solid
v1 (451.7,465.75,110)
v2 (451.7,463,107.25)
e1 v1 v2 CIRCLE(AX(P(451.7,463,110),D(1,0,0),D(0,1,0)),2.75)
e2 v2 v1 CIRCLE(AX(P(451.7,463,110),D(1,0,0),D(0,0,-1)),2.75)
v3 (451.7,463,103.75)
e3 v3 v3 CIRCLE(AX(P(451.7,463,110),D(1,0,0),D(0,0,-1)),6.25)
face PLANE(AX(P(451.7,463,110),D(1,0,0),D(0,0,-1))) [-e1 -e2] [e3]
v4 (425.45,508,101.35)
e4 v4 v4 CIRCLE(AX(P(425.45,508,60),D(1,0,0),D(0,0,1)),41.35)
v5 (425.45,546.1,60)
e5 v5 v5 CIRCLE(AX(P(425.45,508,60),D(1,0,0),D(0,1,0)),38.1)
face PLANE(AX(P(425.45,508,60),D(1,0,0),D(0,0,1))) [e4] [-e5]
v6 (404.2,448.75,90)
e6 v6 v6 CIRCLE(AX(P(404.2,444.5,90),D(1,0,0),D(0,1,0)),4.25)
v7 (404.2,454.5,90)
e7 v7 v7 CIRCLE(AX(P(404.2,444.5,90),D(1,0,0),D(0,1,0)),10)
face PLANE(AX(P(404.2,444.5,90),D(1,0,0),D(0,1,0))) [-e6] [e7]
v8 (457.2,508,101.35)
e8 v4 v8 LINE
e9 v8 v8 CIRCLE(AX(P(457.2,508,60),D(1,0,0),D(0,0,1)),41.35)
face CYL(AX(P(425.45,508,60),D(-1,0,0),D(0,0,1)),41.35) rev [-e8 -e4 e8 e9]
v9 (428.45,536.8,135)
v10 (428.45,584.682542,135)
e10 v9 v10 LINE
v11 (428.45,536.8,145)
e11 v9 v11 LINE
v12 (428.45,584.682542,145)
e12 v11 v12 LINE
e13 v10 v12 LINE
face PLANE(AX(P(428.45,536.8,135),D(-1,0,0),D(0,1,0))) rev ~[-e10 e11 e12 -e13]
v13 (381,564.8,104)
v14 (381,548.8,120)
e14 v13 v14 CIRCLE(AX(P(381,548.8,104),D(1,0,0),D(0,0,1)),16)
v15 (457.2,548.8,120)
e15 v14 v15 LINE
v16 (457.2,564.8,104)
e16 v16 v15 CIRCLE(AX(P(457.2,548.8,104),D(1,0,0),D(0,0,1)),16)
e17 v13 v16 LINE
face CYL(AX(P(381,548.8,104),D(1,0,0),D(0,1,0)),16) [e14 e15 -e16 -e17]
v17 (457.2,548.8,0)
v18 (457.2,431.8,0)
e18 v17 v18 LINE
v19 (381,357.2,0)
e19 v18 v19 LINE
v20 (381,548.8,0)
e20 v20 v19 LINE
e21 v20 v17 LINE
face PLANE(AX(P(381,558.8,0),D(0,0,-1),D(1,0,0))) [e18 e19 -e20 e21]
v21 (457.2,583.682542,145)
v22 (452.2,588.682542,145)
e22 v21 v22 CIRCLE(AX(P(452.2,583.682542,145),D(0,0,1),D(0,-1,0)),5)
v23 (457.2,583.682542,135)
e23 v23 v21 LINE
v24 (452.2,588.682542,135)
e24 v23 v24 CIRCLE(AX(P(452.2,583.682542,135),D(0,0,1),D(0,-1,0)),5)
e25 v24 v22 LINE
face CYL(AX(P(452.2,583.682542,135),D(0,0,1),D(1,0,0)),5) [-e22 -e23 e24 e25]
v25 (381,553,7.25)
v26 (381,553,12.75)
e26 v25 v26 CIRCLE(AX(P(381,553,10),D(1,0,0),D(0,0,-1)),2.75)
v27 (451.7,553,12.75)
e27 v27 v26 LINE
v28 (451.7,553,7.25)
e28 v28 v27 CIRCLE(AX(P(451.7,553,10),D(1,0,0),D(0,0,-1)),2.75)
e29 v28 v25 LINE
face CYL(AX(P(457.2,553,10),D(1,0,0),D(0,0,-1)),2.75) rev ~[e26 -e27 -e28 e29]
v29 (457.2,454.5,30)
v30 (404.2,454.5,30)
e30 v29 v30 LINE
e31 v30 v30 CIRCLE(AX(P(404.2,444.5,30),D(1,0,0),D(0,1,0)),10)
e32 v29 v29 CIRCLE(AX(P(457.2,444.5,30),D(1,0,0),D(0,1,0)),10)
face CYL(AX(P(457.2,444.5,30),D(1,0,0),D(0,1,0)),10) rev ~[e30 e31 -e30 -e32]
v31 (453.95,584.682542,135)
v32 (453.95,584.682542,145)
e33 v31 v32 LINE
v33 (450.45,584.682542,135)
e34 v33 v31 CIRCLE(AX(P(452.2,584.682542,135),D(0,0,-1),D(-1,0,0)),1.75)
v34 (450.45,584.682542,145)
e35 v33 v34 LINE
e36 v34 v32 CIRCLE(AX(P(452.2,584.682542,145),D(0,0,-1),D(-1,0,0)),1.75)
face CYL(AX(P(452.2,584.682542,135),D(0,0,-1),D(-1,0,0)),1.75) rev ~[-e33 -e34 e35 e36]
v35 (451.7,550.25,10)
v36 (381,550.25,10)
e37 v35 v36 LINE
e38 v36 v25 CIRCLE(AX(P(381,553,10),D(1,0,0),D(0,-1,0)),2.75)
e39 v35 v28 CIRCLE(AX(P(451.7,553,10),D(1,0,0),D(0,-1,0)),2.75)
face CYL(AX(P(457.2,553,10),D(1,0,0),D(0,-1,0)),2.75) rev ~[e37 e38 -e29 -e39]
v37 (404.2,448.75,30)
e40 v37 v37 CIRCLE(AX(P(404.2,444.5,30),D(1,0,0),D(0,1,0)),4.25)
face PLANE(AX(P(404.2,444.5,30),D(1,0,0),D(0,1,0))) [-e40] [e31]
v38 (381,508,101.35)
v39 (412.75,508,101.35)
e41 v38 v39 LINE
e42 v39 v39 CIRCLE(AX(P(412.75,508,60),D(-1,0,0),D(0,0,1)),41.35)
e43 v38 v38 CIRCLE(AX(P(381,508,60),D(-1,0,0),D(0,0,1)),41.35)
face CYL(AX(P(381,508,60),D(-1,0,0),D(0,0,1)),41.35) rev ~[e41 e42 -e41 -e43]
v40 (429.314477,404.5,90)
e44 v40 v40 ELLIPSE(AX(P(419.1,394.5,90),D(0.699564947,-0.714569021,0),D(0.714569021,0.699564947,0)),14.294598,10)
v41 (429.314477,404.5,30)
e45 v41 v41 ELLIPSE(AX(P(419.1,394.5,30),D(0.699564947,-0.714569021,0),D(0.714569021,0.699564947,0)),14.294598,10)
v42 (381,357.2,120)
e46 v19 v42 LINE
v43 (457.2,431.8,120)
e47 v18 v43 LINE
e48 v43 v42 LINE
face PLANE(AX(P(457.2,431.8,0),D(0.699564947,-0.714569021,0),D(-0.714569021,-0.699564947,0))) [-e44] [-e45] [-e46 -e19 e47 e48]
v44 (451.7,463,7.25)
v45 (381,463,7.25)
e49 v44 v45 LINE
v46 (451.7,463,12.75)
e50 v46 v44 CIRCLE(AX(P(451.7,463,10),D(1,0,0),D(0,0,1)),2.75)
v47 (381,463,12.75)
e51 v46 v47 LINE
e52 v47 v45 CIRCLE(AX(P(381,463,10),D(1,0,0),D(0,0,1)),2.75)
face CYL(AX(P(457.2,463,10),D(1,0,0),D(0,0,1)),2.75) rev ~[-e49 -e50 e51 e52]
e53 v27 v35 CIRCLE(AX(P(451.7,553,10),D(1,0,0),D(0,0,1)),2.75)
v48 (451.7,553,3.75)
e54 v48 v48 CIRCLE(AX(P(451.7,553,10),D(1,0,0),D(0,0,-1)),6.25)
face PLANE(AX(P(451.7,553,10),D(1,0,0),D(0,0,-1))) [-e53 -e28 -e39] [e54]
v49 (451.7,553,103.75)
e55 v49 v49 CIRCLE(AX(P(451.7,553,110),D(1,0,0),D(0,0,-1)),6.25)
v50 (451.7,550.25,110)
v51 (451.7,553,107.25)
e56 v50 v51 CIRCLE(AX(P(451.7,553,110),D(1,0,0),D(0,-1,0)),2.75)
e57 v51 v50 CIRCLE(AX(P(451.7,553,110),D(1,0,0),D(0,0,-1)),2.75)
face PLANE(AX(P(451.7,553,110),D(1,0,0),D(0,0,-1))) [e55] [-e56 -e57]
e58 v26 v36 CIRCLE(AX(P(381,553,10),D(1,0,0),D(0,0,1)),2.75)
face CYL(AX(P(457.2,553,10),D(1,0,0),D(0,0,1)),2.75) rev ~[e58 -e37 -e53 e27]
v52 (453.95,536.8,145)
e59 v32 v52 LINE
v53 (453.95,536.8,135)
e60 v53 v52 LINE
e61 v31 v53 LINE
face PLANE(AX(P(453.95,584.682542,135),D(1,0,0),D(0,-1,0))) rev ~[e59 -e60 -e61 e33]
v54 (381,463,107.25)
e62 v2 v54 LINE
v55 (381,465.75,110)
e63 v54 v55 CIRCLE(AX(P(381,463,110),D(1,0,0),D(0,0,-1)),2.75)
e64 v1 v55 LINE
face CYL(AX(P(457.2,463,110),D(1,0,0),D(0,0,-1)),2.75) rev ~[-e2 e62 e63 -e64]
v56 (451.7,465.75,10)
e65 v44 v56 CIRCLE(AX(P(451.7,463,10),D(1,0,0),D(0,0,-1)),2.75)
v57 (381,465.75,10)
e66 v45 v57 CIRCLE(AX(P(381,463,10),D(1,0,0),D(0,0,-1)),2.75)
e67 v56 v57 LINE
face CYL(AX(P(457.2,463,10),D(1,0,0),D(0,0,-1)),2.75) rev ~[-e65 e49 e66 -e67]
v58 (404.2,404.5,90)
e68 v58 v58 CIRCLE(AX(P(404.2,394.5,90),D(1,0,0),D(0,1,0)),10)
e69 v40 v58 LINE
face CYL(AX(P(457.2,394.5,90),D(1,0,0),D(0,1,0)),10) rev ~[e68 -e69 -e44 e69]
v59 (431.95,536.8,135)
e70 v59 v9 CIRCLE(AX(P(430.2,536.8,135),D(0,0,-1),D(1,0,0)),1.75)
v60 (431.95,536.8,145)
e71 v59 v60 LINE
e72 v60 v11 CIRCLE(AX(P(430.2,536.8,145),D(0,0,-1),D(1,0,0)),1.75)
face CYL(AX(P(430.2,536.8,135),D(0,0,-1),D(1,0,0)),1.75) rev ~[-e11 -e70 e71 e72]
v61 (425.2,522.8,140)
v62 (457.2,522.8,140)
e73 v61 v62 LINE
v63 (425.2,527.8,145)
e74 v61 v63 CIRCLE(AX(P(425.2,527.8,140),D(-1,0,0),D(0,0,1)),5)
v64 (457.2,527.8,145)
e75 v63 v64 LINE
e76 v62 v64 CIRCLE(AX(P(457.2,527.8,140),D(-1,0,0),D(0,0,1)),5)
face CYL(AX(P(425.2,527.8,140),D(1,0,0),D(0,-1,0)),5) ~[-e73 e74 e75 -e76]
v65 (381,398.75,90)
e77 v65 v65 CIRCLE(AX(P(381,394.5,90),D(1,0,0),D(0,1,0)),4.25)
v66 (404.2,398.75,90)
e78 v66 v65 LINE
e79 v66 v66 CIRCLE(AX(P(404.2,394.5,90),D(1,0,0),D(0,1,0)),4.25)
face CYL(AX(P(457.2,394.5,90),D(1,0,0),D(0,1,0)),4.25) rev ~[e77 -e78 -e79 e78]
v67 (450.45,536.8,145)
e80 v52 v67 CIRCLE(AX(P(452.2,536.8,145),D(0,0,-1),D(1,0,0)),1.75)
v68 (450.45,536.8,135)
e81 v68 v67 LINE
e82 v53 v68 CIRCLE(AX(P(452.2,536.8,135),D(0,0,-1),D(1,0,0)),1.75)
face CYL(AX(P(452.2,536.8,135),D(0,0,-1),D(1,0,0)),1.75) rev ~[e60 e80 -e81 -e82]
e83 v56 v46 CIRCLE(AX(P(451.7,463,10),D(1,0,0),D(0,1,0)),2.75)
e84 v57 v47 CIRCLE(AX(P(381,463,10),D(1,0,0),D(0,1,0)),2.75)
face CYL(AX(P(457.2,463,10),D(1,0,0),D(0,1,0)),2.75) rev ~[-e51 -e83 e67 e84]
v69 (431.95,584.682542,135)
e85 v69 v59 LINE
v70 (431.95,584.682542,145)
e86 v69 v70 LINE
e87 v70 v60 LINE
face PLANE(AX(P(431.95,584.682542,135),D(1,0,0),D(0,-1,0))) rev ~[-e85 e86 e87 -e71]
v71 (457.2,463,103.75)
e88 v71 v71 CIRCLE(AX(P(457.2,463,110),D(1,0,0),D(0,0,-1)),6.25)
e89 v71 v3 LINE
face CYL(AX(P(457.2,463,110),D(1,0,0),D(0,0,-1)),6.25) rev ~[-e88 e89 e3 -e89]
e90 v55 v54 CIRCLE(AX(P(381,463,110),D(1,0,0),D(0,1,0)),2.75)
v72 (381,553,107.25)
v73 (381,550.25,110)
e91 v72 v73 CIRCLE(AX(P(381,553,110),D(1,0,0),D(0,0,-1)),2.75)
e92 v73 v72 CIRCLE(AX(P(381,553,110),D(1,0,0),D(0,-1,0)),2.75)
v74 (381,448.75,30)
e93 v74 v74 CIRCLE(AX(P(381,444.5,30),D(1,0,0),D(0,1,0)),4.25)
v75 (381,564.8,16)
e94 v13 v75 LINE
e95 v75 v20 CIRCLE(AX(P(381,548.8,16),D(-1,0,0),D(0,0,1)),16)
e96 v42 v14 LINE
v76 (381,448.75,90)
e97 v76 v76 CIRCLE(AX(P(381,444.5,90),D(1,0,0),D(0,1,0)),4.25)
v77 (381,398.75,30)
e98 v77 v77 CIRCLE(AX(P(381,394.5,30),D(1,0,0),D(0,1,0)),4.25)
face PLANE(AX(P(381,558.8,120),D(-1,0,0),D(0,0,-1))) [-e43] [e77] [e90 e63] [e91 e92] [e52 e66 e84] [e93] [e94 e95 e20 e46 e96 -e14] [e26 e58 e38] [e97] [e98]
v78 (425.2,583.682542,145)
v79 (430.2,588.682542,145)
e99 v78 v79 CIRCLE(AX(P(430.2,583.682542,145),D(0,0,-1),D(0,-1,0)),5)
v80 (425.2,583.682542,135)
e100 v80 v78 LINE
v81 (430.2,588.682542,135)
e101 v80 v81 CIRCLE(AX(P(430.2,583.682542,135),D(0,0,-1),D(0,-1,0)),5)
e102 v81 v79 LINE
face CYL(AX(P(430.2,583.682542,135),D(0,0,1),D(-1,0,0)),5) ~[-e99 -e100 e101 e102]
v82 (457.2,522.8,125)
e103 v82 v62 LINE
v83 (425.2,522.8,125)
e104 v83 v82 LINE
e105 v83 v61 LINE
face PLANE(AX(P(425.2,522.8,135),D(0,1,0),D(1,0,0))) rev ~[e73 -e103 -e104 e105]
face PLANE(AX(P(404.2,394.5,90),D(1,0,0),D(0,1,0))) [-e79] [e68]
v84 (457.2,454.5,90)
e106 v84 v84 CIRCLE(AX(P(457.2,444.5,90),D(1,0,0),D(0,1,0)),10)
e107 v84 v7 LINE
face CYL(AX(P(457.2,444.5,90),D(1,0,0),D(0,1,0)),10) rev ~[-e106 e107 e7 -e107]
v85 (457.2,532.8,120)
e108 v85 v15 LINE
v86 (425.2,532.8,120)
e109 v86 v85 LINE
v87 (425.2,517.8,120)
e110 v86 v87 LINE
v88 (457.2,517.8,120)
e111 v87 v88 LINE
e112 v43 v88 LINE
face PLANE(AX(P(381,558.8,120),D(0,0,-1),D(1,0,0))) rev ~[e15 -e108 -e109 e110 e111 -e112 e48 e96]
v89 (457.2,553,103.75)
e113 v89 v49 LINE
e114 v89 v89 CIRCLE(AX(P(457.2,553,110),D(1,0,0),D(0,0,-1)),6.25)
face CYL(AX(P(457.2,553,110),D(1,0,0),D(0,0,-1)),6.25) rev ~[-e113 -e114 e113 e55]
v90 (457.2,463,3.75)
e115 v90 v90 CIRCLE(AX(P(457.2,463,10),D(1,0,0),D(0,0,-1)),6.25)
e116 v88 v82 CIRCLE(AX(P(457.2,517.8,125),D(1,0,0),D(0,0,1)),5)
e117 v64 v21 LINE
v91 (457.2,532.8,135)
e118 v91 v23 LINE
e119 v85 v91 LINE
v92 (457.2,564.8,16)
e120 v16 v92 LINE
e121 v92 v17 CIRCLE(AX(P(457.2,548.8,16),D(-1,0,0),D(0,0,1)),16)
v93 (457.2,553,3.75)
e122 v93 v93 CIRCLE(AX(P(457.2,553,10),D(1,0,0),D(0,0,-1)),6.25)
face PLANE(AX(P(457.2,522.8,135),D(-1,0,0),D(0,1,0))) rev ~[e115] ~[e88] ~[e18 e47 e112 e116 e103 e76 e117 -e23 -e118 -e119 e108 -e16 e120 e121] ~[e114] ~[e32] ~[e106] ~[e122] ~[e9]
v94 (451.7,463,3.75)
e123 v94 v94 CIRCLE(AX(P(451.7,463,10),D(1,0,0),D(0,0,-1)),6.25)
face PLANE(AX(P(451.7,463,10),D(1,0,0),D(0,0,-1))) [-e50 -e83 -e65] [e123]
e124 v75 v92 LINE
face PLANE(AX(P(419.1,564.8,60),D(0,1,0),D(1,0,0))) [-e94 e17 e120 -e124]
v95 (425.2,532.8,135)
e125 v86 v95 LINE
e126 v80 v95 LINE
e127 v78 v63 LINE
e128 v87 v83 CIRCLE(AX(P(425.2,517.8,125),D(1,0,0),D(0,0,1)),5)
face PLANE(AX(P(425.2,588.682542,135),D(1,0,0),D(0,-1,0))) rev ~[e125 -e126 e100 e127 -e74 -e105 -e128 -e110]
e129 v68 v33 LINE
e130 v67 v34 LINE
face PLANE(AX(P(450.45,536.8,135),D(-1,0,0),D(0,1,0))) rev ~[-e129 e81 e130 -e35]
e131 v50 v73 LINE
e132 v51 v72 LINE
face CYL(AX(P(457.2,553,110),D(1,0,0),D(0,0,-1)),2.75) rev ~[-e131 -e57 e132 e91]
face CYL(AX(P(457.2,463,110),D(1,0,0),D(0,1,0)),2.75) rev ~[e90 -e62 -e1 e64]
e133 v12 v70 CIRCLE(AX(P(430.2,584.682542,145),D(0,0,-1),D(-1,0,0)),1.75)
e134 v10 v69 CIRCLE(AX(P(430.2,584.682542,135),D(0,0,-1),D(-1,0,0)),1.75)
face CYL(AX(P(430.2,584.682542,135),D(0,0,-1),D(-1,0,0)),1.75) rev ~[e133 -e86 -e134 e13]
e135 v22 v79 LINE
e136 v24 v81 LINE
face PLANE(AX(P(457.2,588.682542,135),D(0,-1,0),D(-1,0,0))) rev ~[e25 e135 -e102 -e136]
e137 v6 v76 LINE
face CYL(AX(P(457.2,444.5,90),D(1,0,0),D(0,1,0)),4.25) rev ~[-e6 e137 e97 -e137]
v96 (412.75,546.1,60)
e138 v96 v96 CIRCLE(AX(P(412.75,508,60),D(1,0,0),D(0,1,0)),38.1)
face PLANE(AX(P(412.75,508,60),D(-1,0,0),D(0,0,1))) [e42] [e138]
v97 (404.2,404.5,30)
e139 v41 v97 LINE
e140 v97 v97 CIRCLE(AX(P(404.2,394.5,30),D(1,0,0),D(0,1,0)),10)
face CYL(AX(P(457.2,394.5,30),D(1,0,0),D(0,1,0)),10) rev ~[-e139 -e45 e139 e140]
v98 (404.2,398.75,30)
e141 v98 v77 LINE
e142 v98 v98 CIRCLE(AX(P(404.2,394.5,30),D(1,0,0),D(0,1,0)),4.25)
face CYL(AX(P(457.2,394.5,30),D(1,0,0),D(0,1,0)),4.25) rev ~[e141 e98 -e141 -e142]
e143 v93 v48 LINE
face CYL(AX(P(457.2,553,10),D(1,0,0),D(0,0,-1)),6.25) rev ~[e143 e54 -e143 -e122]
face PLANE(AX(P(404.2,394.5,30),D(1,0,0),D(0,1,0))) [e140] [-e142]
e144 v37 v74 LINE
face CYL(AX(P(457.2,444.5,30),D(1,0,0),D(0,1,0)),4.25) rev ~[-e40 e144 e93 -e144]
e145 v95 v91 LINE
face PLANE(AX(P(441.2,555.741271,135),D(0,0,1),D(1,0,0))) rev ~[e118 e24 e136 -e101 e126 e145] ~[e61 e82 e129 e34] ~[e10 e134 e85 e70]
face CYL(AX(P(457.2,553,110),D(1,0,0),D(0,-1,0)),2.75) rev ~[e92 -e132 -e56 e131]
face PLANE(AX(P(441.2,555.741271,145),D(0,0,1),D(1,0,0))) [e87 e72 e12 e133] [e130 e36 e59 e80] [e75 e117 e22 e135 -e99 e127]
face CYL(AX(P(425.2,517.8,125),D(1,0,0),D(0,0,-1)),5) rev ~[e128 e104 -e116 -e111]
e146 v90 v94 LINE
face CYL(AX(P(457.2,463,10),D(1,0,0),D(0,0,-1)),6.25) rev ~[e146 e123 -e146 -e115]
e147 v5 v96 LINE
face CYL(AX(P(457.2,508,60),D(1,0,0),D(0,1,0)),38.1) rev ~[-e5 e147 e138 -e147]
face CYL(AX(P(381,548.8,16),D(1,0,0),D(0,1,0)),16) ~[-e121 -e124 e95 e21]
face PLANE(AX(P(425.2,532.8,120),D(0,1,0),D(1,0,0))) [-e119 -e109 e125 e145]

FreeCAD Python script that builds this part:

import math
import FreeCAD as App
import Part
import Sketcher
from FreeCAD import Vector


def edges_at(feature, points):
    """Names of the edges that pass closest to the given points."""
    edges = feature.Shape.Edges
    near = lambda p: min(range(len(edges)), key=lambda i: edges[i].distToShape(Part.Vertex(*p))[0])
    return sorted({f"Edge{near(p) + 1}" for p in points})

doc = App.newDocument("Part")
body = doc.addObject("PartDesign::Body", "Body")

# Sketch on XY plane
sketch1 = body.newObject("Sketcher::SketchObject", "Sketch")
sketch1.AttachmentSupport = (doc.getObject("XY_Plane"), [""])
sketch1.MapMode = "FlatFace"
sketch1.addGeometry([
    Part.LineSegment(Vector(457, 457, 0), Vector(381, 457, 0)),
    Part.LineSegment(Vector(381, 457, 0), Vector(381, 357, 0)),
    Part.LineSegment(Vector(381, 357, 0), Vector(457, 432, 0)),
    Part.LineSegment(Vector(457, 432, 0), Vector(457, 457, 0)),
], False)
sketch1.addConstraint([
    Sketcher.Constraint("Coincident", 0, 2, 1, 1),
    Sketcher.Constraint("Coincident", 1, 2, 2, 1),
    Sketcher.Constraint("Coincident", 2, 2, 3, 1),
    Sketcher.Constraint("Coincident", 3, 2, 0, 1),
    Sketcher.Constraint("Horizontal", 0),
    Sketcher.Constraint("Vertical", 1),
    Sketcher.Constraint("Vertical", 3),
    Sketcher.Constraint("DistanceY", 1, 2, 1, 1, 100.0),
    Sketcher.Constraint("DistanceX", 0, 2, 0, 1, 76.2),
    Sketcher.Constraint("DistanceY", 3, 1, 3, 2, 25.4),
    Sketcher.Constraint("DistanceX", -1, 1, 0, 2, 381.0),
    Sketcher.Constraint("DistanceY", -1, 1, 0, 2, 457.2),
])
pad1 = body.newObject("PartDesign::Pad", "Pad")
pad1.Profile = sketch1
pad1.Length = 120

# Sketch on YZ plane
sketch2 = body.newObject("Sketcher::SketchObject", "Sketch001")
sketch2.AttachmentSupport = (doc.getObject("YZ_Plane"), [""])
sketch2.MapMode = "FlatFace"
sketch2.AttachmentOffset = App.Placement(Vector(0, 0, 457.2), App.Rotation())
sketch2.addGeometry([
    Part.Circle(Vector(394.5, 90, 0), Vector(0, 0, 1), 4.2),
    Part.Circle(Vector(394.5, 30, 0), Vector(0, 0, 1), 4.2),
], False)
sketch2.addConstraint([
    Sketcher.Constraint("Equal", 0, 1),
    Sketcher.Constraint("Vertical", 0, 3, 1, 3),
    Sketcher.Constraint("Diameter", 0, 8.5),
    Sketcher.Constraint("DistanceY", -1, 1, 0, 3, 90.0),
    Sketcher.Constraint("DistanceY", -1, 1, 1, 3, 30.0),
    Sketcher.Constraint("DistanceX", -1, 1, 0, 3, 394.5),
])
pocket1 = body.newObject("PartDesign::Pocket", "Pocket")
pocket1.Profile = sketch2
pocket1.Length = 120

# Sketch on YZ plane
sketch3 = body.newObject("Sketcher::SketchObject", "Sketch002")
sketch3.AttachmentSupport = (doc.getObject("YZ_Plane"), [""])
sketch3.MapMode = "FlatFace"
sketch3.AttachmentOffset = App.Placement(Vector(0, 0, 457.2), App.Rotation())
sketch3.addGeometry([
    Part.Circle(Vector(394, 90, 0), Vector(0, 0, 1), 10),
    Part.Circle(Vector(394, 30, 0), Vector(0, 0, 1), 10),
    Part.Circle(Vector(444, 90, 0), Vector(0, 0, 1), 10),
    Part.Circle(Vector(444, 30, 0), Vector(0, 0, 1), 10),
], False)
sketch3.addConstraint([
    Sketcher.Constraint("Equal", 0, 1),
    Sketcher.Constraint("Equal", 1, 2),
    Sketcher.Constraint("Equal", 2, 3),
    Sketcher.Constraint("Horizontal", 0, 3, 2, 3),
    Sketcher.Constraint("Horizontal", 1, 3, 3, 3),
    Sketcher.Constraint("Vertical", 0, 3, 1, 3),
    Sketcher.Constraint("Vertical", 2, 3, 3, 3),
    Sketcher.Constraint("Diameter", 0, 20.0),
    Sketcher.Constraint("DistanceY", -1, 1, 0, 3, 90.0),
    Sketcher.Constraint("DistanceY", -1, 1, 1, 3, 30.0),
    Sketcher.Constraint("DistanceX", 0, 3, 2, 3, 50.0),
    Sketcher.Constraint("DistanceX", -1, 1, 0, 3, 394.5),
])
pocket2 = body.newObject("PartDesign::Pocket", "Pocket001")
pocket2.Profile = sketch3
pocket2.Length = 53

# Sketch on YZ plane
sketch4 = body.newObject("Sketcher::SketchObject", "Sketch003")
sketch4.AttachmentSupport = (doc.getObject("YZ_Plane"), [""])
sketch4.MapMode = "FlatFace"
sketch4.AttachmentOffset = App.Placement(Vector(0, 0, 457.2), App.Rotation())
sketch4.addGeometry([
    Part.Circle(Vector(444.5, 90, 0), Vector(0, 0, 1), 4.2),
    Part.Circle(Vector(444.5, 30, 0), Vector(0, 0, 1), 4.2),
], False)
sketch4.addConstraint([
    Sketcher.Constraint("Equal", 0, 1),
    Sketcher.Constraint("Vertical", 0, 3, 1, 3),
    Sketcher.Constraint("Diameter", 0, 8.5),
    Sketcher.Constraint("DistanceY", -1, 1, 0, 3, 90.0),
    Sketcher.Constraint("DistanceY", -1, 1, 1, 3, 30.0),
    Sketcher.Constraint("DistanceX", -1, 1, 0, 3, 444.5),
])
pocket3 = body.newObject("PartDesign::Pocket", "Pocket002")
pocket3.Profile = sketch4
pocket3.Length = 103

# Sketch on XZ plane
sketch5 = body.newObject("Sketcher::SketchObject", "Sketch004")
sketch5.AttachmentSupport = (doc.getObject("XZ_Plane"), [""])
sketch5.MapMode = "FlatFace"
sketch5.AttachmentOffset = App.Placement(Vector(0, 0, -457.2), App.Rotation())
sketch5.addGeometry([
    Part.LineSegment(Vector(381, 0, 0), Vector(381, 120, 0)),
    Part.LineSegment(Vector(381, 120, 0), Vector(457, 120, 0)),
    Part.LineSegment(Vector(457, 120, 0), Vector(457, 0, 0)),
    Part.LineSegment(Vector(457, 0, 0), Vector(381, 0, 0)),
], False)
sketch5.addConstraint([
    Sketcher.Constraint("Coincident", 0, 2, 1, 1),
    Sketcher.Constraint("Coincident", 1, 2, 2, 1),
    Sketcher.Constraint("Coincident", 2, 2, 3, 1),
    Sketcher.Constraint("Coincident", 3, 2, 0, 1),
    Sketcher.Constraint("Vertical", 0),
    Sketcher.Constraint("Horizontal", 1),
    Sketcher.Constraint("Vertical", 2),
    Sketcher.Constraint("Horizontal", 3),
    Sketcher.Constraint("PointOnObject", 2, 2, -1),
    Sketcher.Constraint("DistanceY", 0, 1, 0, 2, 120.0),
    Sketcher.Constraint("DistanceX", 1, 1, 1, 2, 76.2),
    Sketcher.Constraint("DistanceX", -1, 1, 0, 2, 381.0),
])
pad2 = body.newObject("PartDesign::Pad", "Pad001")
pad2.Profile = sketch5
pad2.Length = 101.6
pad2.Reversed = True

# Sketch on YZ plane
sketch6 = body.newObject("Sketcher::SketchObject", "Sketch005")
sketch6.AttachmentSupport = (doc.getObject("YZ_Plane"), [""])
sketch6.MapMode = "FlatFace"
sketch6.AttachmentOffset = App.Placement(Vector(0, 0, 381), App.Rotation())
sketch6.addGeometry(Part.Circle(Vector(508, 60, 0), Vector(0, 0, 1), 41), False)
sketch6.addConstraint([
    Sketcher.Constraint("Diameter", 0, 82.7),
    Sketcher.Constraint("DistanceX", -1, 1, 0, 3, 508.0),
    Sketcher.Constraint("DistanceY", -1, 1, 0, 3, 60.0),
])
pocket4 = body.newObject("PartDesign::Pocket", "Pocket003")
pocket4.Profile = sketch6
pocket4.Length = 31.75
pocket4.Reversed = True

# Sketch on YZ plane
sketch7 = body.newObject("Sketcher::SketchObject", "Sketch006")
sketch7.AttachmentSupport = (doc.getObject("YZ_Plane"), [""])
sketch7.MapMode = "FlatFace"
sketch7.AttachmentOffset = App.Placement(Vector(0, 0, 425.45), App.Rotation())
sketch7.addGeometry(Part.Circle(Vector(508, 60, 0), Vector(0, 0, 1), 41), False)
sketch7.addConstraint([
    Sketcher.Constraint("Diameter", 0, 82.7),
    Sketcher.Constraint("DistanceX", -1, 1, 0, 3, 508.0),
    Sketcher.Constraint("DistanceY", -1, 1, 0, 3, 60.0),
])
pocket5 = body.newObject("PartDesign::Pocket", "Pocket004")
pocket5.Profile = sketch7
pocket5.Length = 31.75
pocket5.Reversed = True

# Sketch on YZ plane
sketch8 = body.newObject("Sketcher::SketchObject", "Sketch007")
sketch8.AttachmentSupport = (doc.getObject("YZ_Plane"), [""])
sketch8.MapMode = "FlatFace"
sketch8.AttachmentOffset = App.Placement(Vector(0, 0, 457.2), App.Rotation())
sketch8.addGeometry(Part.Circle(Vector(508, 60, 0), Vector(0, 0, 1), 38), False)
sketch8.addConstraint([
    Sketcher.Constraint("Diameter", 0, 76.2),
    Sketcher.Constraint("DistanceX", -1, 1, 0, 3, 508.0),
    Sketcher.Constraint("DistanceY", -1, 1, 0, 3, 60.0),
])
pocket6 = body.newObject("PartDesign::Pocket", "Pocket005")
pocket6.Profile = sketch8
pocket6.Length = 76.2

# Sketch on XZ plane
sketch9 = body.newObject("Sketcher::SketchObject", "Sketch008")
sketch9.AttachmentSupport = (doc.getObject("XZ_Plane"), [""])
sketch9.MapMode = "FlatFace"
sketch9.AttachmentOffset = App.Placement(Vector(0, 0, -558.8), App.Rotation())
sketch9.addGeometry([
    Part.LineSegment(Vector(381, 0, 0), Vector(381, 120, 0)),
    Part.LineSegment(Vector(381, 120, 0), Vector(457, 120, 0)),
    Part.LineSegment(Vector(457, 120, 0), Vector(457, 0, 0)),
    Part.LineSegment(Vector(457, 0, 0), Vector(381, 0, 0)),
], False)
sketch9.addConstraint([
    Sketcher.Constraint("Coincident", 0, 2, 1, 1),
    Sketcher.Constraint("Coincident", 1, 2, 2, 1),
    Sketcher.Constraint("Coincident", 2, 2, 3, 1),
    Sketcher.Constraint("Coincident", 3, 2, 0, 1),
    Sketcher.Constraint("Vertical", 0),
    Sketcher.Constraint("Horizontal", 1),
    Sketcher.Constraint("Vertical", 2),
    Sketcher.Constraint("Horizontal", 3),
    Sketcher.Constraint("PointOnObject", 2, 2, -1),
    Sketcher.Constraint("DistanceY", 0, 1, 0, 2, 120.0),
    Sketcher.Constraint("DistanceX", 1, 1, 1, 2, 76.2),
    Sketcher.Constraint("DistanceX", -1, 1, 0, 2, 381.0),
])
pad3 = body.newObject("PartDesign::Pad", "Pad002")
pad3.Profile = sketch9
pad3.Length = 6
pad3.Reversed = True

# Sketch on YZ plane
sketch10 = body.newObject("Sketcher::SketchObject", "Sketch009")
sketch10.AttachmentSupport = (doc.getObject("YZ_Plane"), [""])
sketch10.MapMode = "FlatFace"
sketch10.AttachmentOffset = App.Placement(Vector(0, 0, 457.2), App.Rotation())
sketch10.addGeometry([
    Part.ArcOfCircle(Part.Circle(Vector(553, 110, 0), Vector(0, 0, 1), 2.8), math.radians(-90), math.radians(180)),  # 0
    Part.ArcOfCircle(Part.Circle(Vector(553, 110, 0), Vector(0, 0, 1), 2.8), math.radians(-180), math.radians(-90)),  # 1
    Part.ArcOfCircle(Part.Circle(Vector(553, 10, 0), Vector(0, 0, 1), 2.8), math.radians(-90), math.radians(90)),  # 2
    Part.ArcOfCircle(Part.Circle(Vector(553, 10, 0), Vector(0, 0, 1), 2.8), math.radians(90), math.radians(180)),  # 3
    Part.ArcOfCircle(Part.Circle(Vector(553, 10, 0), Vector(0, 0, 1), 2.8), math.radians(-180), math.radians(-90)),  # 4
    Part.ArcOfCircle(Part.Circle(Vector(463, 10, 0), Vector(0, 0, 1), 2.8), math.radians(-90), math.radians(0)),  # 5
    Part.ArcOfCircle(Part.Circle(Vector(463, 10, 0), Vector(0, 0, 1), 2.8), math.radians(0), math.radians(90)),  # 6
    Part.ArcOfCircle(Part.Circle(Vector(463, 10, 0), Vector(0, 0, 1), 2.8), math.radians(90), math.radians(270)),  # 7
    Part.ArcOfCircle(Part.Circle(Vector(463, 110, 0), Vector(0, 0, 1), 2.8), math.radians(-90), math.radians(0)),  # 8
    Part.ArcOfCircle(Part.Circle(Vector(463, 110, 0), Vector(0, 0, 1), 2.8), math.radians(0), math.radians(270)),  # 9
], False)
sketch10.addConstraint([
    Sketcher.Constraint("Tangent", 0, 1, 1, 2),
    Sketcher.Constraint("Coincident", 1, 1, 0, 2),
    Sketcher.Constraint("Tangent", 2, 2, 3, 1),
    Sketcher.Constraint("Tangent", 3, 2, 4, 1),
    Sketcher.Constraint("Tangent", 4, 2, 2, 1),
    Sketcher.Constraint("Tangent", 5, 2, 6, 1),
    Sketcher.Constraint("Tangent", 6, 2, 7, 1),
    Sketcher.Constraint("Tangent", 7, 2, 5, 1),
    Sketcher.Constraint("Tangent", 8, 1, 9, 2),
    Sketcher.Constraint("Coincident", 9, 1, 8, 2),
    Sketcher.Constraint("Equal", 1, 2),
    Sketcher.Constraint("Equal", 4, 5),
    Sketcher.Constraint("Equal", 7, 8),
    Sketcher.Constraint("Horizontal", 4, 3, 5, 3),
    Sketcher.Constraint("Horizontal", 1, 3, 8, 3),
    Sketcher.Constraint("Horizontal", 9, 3, 1, 1),
    Sketcher.Constraint("Horizontal", 7, 3, 3, 2),
    Sketcher.Constraint("Horizontal", 3, 2, 5, 2),
    Sketcher.Constraint("Horizontal", 1, 1, 9, 1),
    Sketcher.Constraint("Vertical", 1, 3, 2, 3),
    Sketcher.Constraint("Vertical", 7, 3, 8, 3),
    Sketcher.Constraint("Vertical", 4, 3, 0, 1),
    Sketcher.Constraint("Vertical", 0, 1, 2, 2),
    Sketcher.Constraint("Vertical", 2, 2, 4, 2),
    Sketcher.Constraint("Vertical", 9, 3, 6, 2),
    Sketcher.Constraint("Vertical", 6, 2, 7, 2),
    Sketcher.Constraint("Vertical", 7, 2, 8, 1),
    Sketcher.Constraint("Radius", 0, 2.75),
    Sketcher.Constraint("DistanceX", -1, 1, 0, 3, 553.0),
    Sketcher.Constraint("DistanceY", -1, 1, 0, 3, 110.0),
    Sketcher.Constraint("DistanceY", -1, 1, 2, 3, 10.0),
    Sketcher.Constraint("DistanceX", -1, 1, 5, 3, 463.0),
])
pocket7 = body.newObject("PartDesign::Pocket", "Pocket006")
pocket7.Profile = sketch10
pocket7.Length = 84.4

# Sketch on YZ plane
sketch11 = body.newObject("Sketcher::SketchObject", "Sketch010")
sketch11.AttachmentSupport = (doc.getObject("YZ_Plane"), [""])
sketch11.MapMode = "FlatFace"
sketch11.AttachmentOffset = App.Placement(Vector(0, 0, 457.2), App.Rotation())
sketch11.addGeometry([
    Part.Circle(Vector(553, 110, 0), Vector(0, 0, 1), 6),
    Part.Circle(Vector(553, 10, 0), Vector(0, 0, 1), 6),
    Part.Circle(Vector(463, 10, 0), Vector(0, 0, 1), 6),
    Part.Circle(Vector(463, 110, 0), Vector(0, 0, 1), 6),
], False)
sketch11.addConstraint([
    Sketcher.Constraint("Equal", 0, 1),
    Sketcher.Constraint("Equal", 1, 2),
    Sketcher.Constraint("Equal", 2, 3),
    Sketcher.Constraint("Horizontal", 1, 3, 2, 3),
    Sketcher.Constraint("Horizontal", 0, 3, 3, 3),
    Sketcher.Constraint("Vertical", 0, 3, 1, 3),
    Sketcher.Constraint("Vertical", 2, 3, 3, 3),
    Sketcher.Constraint("Diameter", 0, 12.5),
    Sketcher.Constraint("DistanceX", -1, 1, 0, 3, 553.0),
    Sketcher.Constraint("DistanceY", -1, 1, 0, 3, 110.0),
    Sketcher.Constraint("DistanceY", -1, 1, 1, 3, 10.0),
    Sketcher.Constraint("DistanceX", -1, 1, 2, 3, 463.0),
])
pocket8 = body.newObject("PartDesign::Pocket", "Pocket007")
pocket8.Profile = sketch11
pocket8.Length = 5.5
doc.recompute()

fillet = body.newObject("PartDesign::Fillet", "Fillet")
fillet.Base = (pocket8, edges_at(pocket8, [(419.1, 564.8, 120), (419.1, 564.8, 0)]))
fillet.Radius = 16

# Sketch on XY plane
sketch12 = body.newObject("Sketcher::SketchObject", "Sketch011")
sketch12.AttachmentSupport = (doc.getObject("XY_Plane"), [""])
sketch12.MapMode = "FlatFace"
sketch12.AttachmentOffset = App.Placement(Vector(0, 0, 120), App.Rotation())
sketch12.addGeometry([
    Part.LineSegment(Vector(425, 533, 0), Vector(425, 523, 0)),
    Part.LineSegment(Vector(425, 523, 0), Vector(457, 523, 0)),
    Part.LineSegment(Vector(457, 523, 0), Vector(457, 533, 0)),
    Part.LineSegment(Vector(457, 533, 0), Vector(425, 533, 0)),
], False)
sketch12.addConstraint([
    Sketcher.Constraint("Coincident", 0, 2, 1, 1),
    Sketcher.Constraint("Coincident", 1, 2, 2, 1),
    Sketcher.Constraint("Coincident", 2, 2, 3, 1),
    Sketcher.Constraint("Coincident", 3, 2, 0, 1),
    Sketcher.Constraint("Vertical", 0),
    Sketcher.Constraint("Horizontal", 1),
    Sketcher.Constraint("Vertical", 2),
    Sketcher.Constraint("Horizontal", 3),
    Sketcher.Constraint("DistanceX", 1, 1, 1, 2, 32.0),
    Sketcher.Constraint("DistanceY", 0, 2, 0, 1, 10.0),
    Sketcher.Constraint("DistanceX", -1, 1, 0, 2, 425.2),
    Sketcher.Constraint("DistanceY", -1, 1, 0, 2, 522.8),
])
pad4 = body.newObject("PartDesign::Pad", "Pad003")
pad4.Profile = sketch12
pad4.Length = 15

# Sketch on XY plane
sketch13 = body.newObject("Sketcher::SketchObject", "Sketch012")
sketch13.AttachmentSupport = (doc.getObject("XY_Plane"), [""])
sketch13.MapMode = "FlatFace"
sketch13.AttachmentOffset = App.Placement(Vector(0, 0, 135), App.Rotation())
sketch13.addGeometry([
    Part.LineSegment(Vector(425.2, 588.7, 0), Vector(425.2, 522.8, 0)),  # 0
    Part.LineSegment(Vector(425.2, 522.8, 0), Vector(457.2, 522.8, 0)),  # 1
    Part.LineSegment(Vector(457.2, 522.8, 0), Vector(457.2, 588.7, 0)),  # 2
    Part.LineSegment(Vector(457.2, 588.7, 0), Vector(425.2, 588.7, 0)),  # 3
    Part.LineSegment(Vector(428.4, 536.8, 0), Vector(428.4, 584.7, 0)),  # 4
    Part.ArcOfCircle(Part.Circle(Vector(430.2, 584.7, 0), Vector(0, 0, 1), 1.8), math.radians(0), math.radians(180)),  # 5
    Part.LineSegment(Vector(431.9, 584.7, 0), Vector(431.9, 536.8, 0)),  # 6
    Part.ArcOfCircle(Part.Circle(Vector(430.2, 536.8, 0), Vector(0, 0, 1), 1.8), math.radians(180), math.radians(360)),  # 7
    Part.ArcOfCircle(Part.Circle(Vector(452.2, 536.8, 0), Vector(0, 0, 1), 1.8), math.radians(180), math.radians(360)),  # 8
    Part.LineSegment(Vector(450.4, 536.8, 0), Vector(450.4, 584.7, 0)),  # 9
    Part.ArcOfCircle(Part.Circle(Vector(452.2, 584.7, 0), Vector(0, 0, 1), 1.8), math.radians(0), math.radians(180)),  # 10
    Part.LineSegment(Vector(453.9, 584.7, 0), Vector(453.9, 536.8, 0)),  # 11
], False)
sketch13.addConstraint([
    Sketcher.Constraint("Coincident", 0, 2, 1, 1),
    Sketcher.Constraint("Coincident", 1, 2, 2, 1),
    Sketcher.Constraint("Coincident", 2, 2, 3, 1),
    Sketcher.Constraint("Coincident", 3, 2, 0, 1),
    Sketcher.Constraint("Tangent", 4, 2, 5, 2),
    Sketcher.Constraint("Tangent", 5, 1, 6, 1),
    Sketcher.Constraint("Tangent", 6, 2, 7, 2),
    Sketcher.Constraint("Tangent", 7, 1, 4, 1),
    Sketcher.Constraint("Tangent", 8, 1, 9, 1),
    Sketcher.Constraint("Tangent", 9, 2, 10, 2),
    Sketcher.Constraint("Tangent", 10, 1, 11, 1),
    Sketcher.Constraint("Tangent", 11, 2, 8, 2),
    Sketcher.Constraint("Vertical", 0),
    Sketcher.Constraint("Horizontal", 1),
    Sketcher.Constraint("Vertical", 2),
    Sketcher.Constraint("Horizontal", 3),
    Sketcher.Constraint("Vertical", 4),
    Sketcher.Constraint("Vertical", 6),
    Sketcher.Constraint("Vertical", 9),
    Sketcher.Constraint("Vertical", 11),
    Sketcher.Constraint("Equal", 7, 8),
    Sketcher.Constraint("Horizontal", 7, 3, 8, 3),
    Sketcher.Constraint("Horizontal", 5, 3, 10, 3),
    Sketcher.Constraint("DistanceX", 1, 1, 1, 2, 32.0),
    Sketcher.Constraint("Radius", 5, 1.75),
    Sketcher.Constraint("DistanceX", 7, 3, 8, 3, 22.0),
    Sketcher.Constraint("DistanceX", 0, 2, 7, 3, 5.0),
    Sketcher.Constraint("DistanceY", 0, 2, 7, 3, 14.0),
    Sketcher.Constraint("DistanceY", 10, 3, 2, 2, 4.0),
    Sketcher.Constraint("DistanceX", -1, 1, 5, 3, 430.2),
    Sketcher.Constraint("DistanceY", -1, 1, 7, 3, 536.8),
    Sketcher.Constraint("DistanceY", 0, 2, 0, 1, 65.882542),
])
pad5 = body.newObject("PartDesign::Pad", "Pad004")
pad5.Profile = sketch13
pad5.Length = 10
doc.recompute()

fillet2 = body.newObject("PartDesign::Fillet", "Fillet001")
fillet2.Base = (pad5, edges_at(pad5, [
    (441.2, 522.8, 120),
    (425.2, 588.683, 140),
    (457.2, 588.683, 140),
    (441.2, 522.8, 145),
]))
fillet2.Radius = 5

doc.recompute()
